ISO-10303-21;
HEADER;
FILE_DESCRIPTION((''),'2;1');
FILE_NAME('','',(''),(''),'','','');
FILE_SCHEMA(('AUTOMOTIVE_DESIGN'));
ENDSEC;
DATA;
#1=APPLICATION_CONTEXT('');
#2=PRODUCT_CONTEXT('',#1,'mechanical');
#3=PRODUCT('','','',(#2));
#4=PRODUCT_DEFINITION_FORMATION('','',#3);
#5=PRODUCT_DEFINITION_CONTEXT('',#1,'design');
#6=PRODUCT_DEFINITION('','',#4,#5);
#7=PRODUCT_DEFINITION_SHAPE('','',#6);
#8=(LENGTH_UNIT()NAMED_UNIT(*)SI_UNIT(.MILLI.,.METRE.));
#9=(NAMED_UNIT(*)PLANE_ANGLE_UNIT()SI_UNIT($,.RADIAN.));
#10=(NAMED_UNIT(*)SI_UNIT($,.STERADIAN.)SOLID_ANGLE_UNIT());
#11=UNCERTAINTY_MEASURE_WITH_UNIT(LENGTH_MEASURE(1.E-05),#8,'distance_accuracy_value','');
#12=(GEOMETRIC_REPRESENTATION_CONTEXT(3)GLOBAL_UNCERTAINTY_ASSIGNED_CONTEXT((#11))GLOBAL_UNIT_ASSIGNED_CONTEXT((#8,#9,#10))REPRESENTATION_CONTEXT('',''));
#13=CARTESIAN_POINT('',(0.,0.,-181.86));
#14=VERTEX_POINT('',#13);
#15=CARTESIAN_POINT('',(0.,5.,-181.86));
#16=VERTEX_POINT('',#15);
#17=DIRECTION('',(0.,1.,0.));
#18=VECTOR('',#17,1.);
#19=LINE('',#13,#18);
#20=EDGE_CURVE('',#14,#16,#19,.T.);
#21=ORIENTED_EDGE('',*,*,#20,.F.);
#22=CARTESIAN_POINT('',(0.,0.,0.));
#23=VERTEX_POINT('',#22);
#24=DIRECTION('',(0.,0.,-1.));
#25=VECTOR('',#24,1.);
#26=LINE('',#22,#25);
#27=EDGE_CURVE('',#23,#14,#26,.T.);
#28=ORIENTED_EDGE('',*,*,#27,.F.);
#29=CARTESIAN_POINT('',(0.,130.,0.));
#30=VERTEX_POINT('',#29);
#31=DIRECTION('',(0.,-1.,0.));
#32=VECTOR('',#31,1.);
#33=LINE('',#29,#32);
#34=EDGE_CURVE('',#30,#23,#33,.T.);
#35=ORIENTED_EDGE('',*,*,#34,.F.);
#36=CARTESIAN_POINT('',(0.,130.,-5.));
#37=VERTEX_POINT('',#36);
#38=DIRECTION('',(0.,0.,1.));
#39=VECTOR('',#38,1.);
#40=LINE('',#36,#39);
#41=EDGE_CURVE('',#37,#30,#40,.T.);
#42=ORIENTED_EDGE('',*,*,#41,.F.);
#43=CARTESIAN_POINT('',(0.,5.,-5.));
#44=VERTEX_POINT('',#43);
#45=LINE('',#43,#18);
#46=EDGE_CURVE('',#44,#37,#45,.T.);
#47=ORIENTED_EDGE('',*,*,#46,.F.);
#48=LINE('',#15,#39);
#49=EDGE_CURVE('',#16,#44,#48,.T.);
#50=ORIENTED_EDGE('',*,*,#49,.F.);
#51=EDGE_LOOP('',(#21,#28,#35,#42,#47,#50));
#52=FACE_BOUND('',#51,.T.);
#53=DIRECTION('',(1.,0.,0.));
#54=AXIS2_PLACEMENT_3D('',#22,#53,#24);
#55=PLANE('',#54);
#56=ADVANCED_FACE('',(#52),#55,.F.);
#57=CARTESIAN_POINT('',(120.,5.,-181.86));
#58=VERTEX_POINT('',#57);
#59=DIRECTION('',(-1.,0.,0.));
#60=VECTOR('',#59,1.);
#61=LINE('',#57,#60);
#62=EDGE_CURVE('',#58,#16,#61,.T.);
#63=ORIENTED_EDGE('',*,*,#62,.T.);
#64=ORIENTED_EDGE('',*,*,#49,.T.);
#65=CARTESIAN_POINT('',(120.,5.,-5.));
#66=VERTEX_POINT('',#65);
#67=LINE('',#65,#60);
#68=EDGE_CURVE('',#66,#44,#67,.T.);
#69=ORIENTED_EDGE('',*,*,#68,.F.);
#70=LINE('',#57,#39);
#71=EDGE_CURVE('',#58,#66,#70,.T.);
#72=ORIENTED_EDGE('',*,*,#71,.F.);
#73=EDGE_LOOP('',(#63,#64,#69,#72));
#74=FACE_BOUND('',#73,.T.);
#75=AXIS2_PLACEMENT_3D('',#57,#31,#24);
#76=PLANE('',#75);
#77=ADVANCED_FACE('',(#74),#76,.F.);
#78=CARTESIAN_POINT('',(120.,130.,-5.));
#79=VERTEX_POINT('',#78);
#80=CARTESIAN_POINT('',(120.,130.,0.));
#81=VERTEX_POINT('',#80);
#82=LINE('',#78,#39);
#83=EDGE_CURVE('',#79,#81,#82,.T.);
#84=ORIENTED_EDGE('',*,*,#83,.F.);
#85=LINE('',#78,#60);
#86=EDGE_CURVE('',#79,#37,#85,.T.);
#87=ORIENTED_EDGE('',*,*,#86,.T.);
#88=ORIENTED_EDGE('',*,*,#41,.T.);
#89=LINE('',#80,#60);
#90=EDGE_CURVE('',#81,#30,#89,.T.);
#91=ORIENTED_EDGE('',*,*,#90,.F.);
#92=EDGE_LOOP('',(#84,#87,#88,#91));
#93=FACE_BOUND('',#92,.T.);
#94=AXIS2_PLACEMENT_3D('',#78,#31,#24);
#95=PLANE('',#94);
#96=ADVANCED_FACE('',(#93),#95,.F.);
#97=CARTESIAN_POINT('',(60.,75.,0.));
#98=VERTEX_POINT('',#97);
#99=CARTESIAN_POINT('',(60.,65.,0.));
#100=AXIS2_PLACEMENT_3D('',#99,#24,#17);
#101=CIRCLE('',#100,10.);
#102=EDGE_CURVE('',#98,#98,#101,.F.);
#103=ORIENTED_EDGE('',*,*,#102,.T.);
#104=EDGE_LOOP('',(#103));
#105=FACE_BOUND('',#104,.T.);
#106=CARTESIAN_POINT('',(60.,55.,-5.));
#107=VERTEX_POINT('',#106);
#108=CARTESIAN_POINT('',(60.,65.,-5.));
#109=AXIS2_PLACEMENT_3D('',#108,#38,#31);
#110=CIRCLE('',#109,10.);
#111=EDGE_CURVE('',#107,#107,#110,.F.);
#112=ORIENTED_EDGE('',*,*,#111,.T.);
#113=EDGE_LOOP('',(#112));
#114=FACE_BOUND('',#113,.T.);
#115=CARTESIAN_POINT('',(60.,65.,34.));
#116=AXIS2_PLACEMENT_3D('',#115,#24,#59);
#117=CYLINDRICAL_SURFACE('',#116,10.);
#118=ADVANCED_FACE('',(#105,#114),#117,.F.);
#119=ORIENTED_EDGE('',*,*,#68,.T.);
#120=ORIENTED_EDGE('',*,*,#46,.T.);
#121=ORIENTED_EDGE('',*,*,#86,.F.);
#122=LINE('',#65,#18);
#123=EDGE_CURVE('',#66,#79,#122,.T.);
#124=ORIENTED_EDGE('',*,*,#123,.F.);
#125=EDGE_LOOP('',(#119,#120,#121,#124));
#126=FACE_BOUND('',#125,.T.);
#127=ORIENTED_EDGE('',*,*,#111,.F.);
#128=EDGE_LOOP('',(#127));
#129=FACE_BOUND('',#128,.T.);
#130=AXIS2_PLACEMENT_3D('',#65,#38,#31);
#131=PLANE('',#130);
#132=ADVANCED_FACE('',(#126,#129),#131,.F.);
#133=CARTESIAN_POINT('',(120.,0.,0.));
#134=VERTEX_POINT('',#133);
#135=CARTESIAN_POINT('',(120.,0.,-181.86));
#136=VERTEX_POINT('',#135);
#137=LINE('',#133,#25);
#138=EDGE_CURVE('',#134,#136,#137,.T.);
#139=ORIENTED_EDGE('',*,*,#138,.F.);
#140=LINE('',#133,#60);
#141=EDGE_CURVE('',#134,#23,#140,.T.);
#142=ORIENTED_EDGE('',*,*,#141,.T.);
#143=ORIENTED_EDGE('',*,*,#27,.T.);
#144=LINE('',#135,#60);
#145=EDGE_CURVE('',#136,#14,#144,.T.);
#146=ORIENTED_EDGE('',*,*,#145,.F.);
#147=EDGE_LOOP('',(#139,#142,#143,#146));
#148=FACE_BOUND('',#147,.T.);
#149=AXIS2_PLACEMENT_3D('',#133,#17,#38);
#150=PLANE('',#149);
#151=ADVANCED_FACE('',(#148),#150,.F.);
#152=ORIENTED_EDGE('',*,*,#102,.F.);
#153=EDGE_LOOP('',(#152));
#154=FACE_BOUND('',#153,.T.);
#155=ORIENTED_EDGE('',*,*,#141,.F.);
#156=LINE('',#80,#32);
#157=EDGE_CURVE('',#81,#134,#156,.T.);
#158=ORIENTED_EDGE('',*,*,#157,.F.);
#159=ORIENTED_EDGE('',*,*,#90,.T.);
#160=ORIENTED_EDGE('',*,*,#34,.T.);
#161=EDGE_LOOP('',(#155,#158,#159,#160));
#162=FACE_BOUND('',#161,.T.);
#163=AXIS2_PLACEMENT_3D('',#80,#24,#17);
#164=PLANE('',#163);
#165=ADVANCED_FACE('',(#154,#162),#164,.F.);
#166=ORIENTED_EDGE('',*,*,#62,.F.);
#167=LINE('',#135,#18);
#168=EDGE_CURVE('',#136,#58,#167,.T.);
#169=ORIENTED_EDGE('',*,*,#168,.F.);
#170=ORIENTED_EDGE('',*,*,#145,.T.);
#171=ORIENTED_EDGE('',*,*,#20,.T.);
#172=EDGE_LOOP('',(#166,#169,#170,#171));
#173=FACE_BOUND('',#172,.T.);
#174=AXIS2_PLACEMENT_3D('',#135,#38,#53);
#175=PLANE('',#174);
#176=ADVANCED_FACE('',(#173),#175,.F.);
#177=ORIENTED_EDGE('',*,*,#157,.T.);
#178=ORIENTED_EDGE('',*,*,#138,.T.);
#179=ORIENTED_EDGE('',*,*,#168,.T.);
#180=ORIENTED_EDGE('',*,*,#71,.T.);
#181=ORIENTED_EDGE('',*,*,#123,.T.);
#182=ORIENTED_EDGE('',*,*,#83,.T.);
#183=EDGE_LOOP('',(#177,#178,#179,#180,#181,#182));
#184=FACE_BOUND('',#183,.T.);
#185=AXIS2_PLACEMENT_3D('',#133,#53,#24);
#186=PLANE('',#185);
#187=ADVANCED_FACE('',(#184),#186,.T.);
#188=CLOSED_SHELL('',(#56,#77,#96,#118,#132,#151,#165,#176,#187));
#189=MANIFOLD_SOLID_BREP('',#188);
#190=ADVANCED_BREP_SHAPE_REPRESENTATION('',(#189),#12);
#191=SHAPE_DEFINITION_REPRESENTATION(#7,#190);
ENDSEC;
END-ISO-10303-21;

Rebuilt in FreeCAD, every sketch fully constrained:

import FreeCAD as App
import Part
import Sketcher
from FreeCAD import Vector

doc = App.newDocument("Part")
body = doc.addObject("PartDesign::Body", "Body")

# Sketch on YZ plane
sketch1 = body.newObject("Sketcher::SketchObject", "Sketch")
sketch1.AttachmentSupport = (doc.getObject("YZ_Plane"), [""])
sketch1.MapMode = "FlatFace"
sketch1.addGeometry(Part.LineSegment(Vector(0, 0, 0), Vector(0, -182, 0)), False)
sketch1.addGeometry(Part.LineSegment(Vector(0, -182, 0), Vector(5, -182, 0)), False)
sketch1.addGeometry(Part.LineSegment(Vector(5, -182, 0), Vector(5, -5, 0)), False)
sketch1.addGeometry(Part.LineSegment(Vector(5, -5, 0), Vector(130, -5, 0)), False)
sketch1.addGeometry(Part.LineSegment(Vector(130, -5, 0), Vector(130, 0, 0)), False)
sketch1.addGeometry(Part.LineSegment(Vector(130, 0, 0), Vector(0, 0, 0)), False)
sketch1.addConstraint(Sketcher.Constraint("Coincident", 0, 2, 1, 1))
sketch1.addConstraint(Sketcher.Constraint("Coincident", 1, 2, 2, 1))
sketch1.addConstraint(Sketcher.Constraint("Coincident", 2, 2, 3, 1))
sketch1.addConstraint(Sketcher.Constraint("Coincident", 3, 2, 4, 1))
sketch1.addConstraint(Sketcher.Constraint("Coincident", 4, 2, 5, 1))
sketch1.addConstraint(Sketcher.Constraint("Coincident", 5, 2, 0, 1))
sketch1.addConstraint(Sketcher.Constraint("Vertical", 0))
sketch1.addConstraint(Sketcher.Constraint("Horizontal", 1))
sketch1.addConstraint(Sketcher.Constraint("Vertical", 2))
sketch1.addConstraint(Sketcher.Constraint("Horizontal", 3))
sketch1.addConstraint(Sketcher.Constraint("Vertical", 4))
sketch1.addConstraint(Sketcher.Constraint("Horizontal", 5))
sketch1.addConstraint(Sketcher.Constraint("Coincident", 5, 2, -1, 1))
sketch1.addConstraint(Sketcher.Constraint("Equal", 1, 4))
sketch1.addConstraint(Sketcher.Constraint("DistanceX", 1, 1, 1, 2, 5.0))
sketch1.addConstraint(Sketcher.Constraint("DistanceX", 3, 1, 3, 2, 125.0))
sketch1.addConstraint(Sketcher.Constraint("DistanceY", 0, 2, 0, 1, 181.86))
pad1 = body.newObject("PartDesign::Pad", "Pad")
pad1.Profile = sketch1
pad1.Length = 120

# Sketch on XY plane
sketch2 = body.newObject("Sketcher::SketchObject", "Sketch001")
sketch2.AttachmentSupport = (doc.getObject("XY_Plane"), [""])
sketch2.MapMode = "FlatFace"
sketch2.addGeometry(Part.Circle(Vector(60, 65, 0), Vector(0, 0, 1), 10), False)
sketch2.addConstraint(Sketcher.Constraint("Diameter", 0, 20.0))
sketch2.addConstraint(Sketcher.Constraint("DistanceX", -1, 1, 0, 3, 60.0))
sketch2.addConstraint(Sketcher.Constraint("DistanceY", -1, 1, 0, 3, 65.0))
pocket1 = body.newObject("PartDesign::Pocket", "Pocket")
pocket1.Profile = sketch2
pocket1.Type = "ThroughAll"
pocket1.Midplane = True

doc.recompute()
